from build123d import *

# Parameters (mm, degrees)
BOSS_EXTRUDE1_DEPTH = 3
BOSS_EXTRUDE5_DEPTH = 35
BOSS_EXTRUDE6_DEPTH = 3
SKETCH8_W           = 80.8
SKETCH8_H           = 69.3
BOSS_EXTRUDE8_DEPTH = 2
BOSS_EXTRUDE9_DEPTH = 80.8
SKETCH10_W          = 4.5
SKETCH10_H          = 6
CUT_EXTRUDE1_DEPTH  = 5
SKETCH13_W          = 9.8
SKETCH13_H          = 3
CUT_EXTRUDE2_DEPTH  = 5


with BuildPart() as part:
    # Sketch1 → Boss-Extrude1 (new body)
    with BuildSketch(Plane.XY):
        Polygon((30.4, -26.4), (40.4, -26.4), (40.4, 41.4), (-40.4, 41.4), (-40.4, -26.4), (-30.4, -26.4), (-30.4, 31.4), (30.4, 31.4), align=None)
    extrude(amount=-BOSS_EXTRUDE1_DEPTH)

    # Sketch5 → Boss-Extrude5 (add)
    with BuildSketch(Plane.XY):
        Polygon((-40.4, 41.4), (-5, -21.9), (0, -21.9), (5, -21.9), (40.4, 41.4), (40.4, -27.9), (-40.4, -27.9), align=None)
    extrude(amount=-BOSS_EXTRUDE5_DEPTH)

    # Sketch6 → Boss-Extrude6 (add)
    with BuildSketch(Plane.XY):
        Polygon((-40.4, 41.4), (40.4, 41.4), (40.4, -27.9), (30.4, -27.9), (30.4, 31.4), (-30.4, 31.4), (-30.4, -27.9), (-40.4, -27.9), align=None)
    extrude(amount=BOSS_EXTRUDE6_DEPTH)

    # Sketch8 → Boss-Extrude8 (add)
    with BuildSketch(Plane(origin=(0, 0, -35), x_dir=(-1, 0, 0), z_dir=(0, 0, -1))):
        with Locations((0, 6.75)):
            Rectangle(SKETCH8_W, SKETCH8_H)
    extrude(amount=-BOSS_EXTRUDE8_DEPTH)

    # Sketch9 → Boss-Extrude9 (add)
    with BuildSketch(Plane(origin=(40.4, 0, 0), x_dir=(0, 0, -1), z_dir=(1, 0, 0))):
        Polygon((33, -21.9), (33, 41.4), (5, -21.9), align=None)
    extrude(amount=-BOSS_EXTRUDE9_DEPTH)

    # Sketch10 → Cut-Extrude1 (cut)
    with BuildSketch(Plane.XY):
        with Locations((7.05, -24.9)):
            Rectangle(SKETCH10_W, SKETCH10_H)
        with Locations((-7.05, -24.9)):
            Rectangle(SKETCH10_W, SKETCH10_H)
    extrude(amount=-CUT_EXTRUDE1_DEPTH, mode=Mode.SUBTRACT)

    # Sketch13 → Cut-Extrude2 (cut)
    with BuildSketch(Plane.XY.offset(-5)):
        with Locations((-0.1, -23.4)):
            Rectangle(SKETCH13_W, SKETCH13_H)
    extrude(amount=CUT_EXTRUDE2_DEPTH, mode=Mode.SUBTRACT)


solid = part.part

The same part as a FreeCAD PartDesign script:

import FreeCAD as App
import Part
import Sketcher
from FreeCAD import Vector

doc = App.newDocument("Part")
body = doc.addObject("PartDesign::Body", "Body")

# Sketch on XY plane
sketch1 = doc.addObject("Sketcher::SketchObject", "Sketch")
body.addObject(sketch1)
sketch1.AttachmentSupport = (doc.XY_Plane, [""])
sketch1.MapMode = "FlatFace"
sketch1.addGeometry(Part.LineSegment(Vector(30, -26, 0), Vector(40, -26, 0)), False)
sketch1.addGeometry(Part.LineSegment(Vector(40, -26, 0), Vector(40, 41, 0)), False)
sketch1.addGeometry(Part.LineSegment(Vector(40, 41, 0), Vector(-40, 41, 0)), False)
sketch1.addGeometry(Part.LineSegment(Vector(-40, 41, 0), Vector(-40, -26, 0)), False)
sketch1.addGeometry(Part.LineSegment(Vector(-40, -26, 0), Vector(-30, -26, 0)), False)
sketch1.addGeometry(Part.LineSegment(Vector(-30, -26, 0), Vector(-30, 31, 0)), False)
sketch1.addGeometry(Part.LineSegment(Vector(-30, 31, 0), Vector(30, 31, 0)), False)
sketch1.addGeometry(Part.LineSegment(Vector(30, 31, 0), Vector(30, -26, 0)), False)
sketch1.addConstraint(Sketcher.Constraint("Coincident", 0, 2, 1, 1))
sketch1.addConstraint(Sketcher.Constraint("Coincident", 1, 2, 2, 1))
sketch1.addConstraint(Sketcher.Constraint("Coincident", 2, 2, 3, 1))
sketch1.addConstraint(Sketcher.Constraint("Coincident", 3, 2, 4, 1))
sketch1.addConstraint(Sketcher.Constraint("Coincident", 4, 2, 5, 1))
sketch1.addConstraint(Sketcher.Constraint("Coincident", 5, 2, 6, 1))
sketch1.addConstraint(Sketcher.Constraint("Coincident", 6, 2, 7, 1))
sketch1.addConstraint(Sketcher.Constraint("Coincident", 7, 2, 0, 1))
sketch1.addConstraint(Sketcher.Constraint("Horizontal", 0))
sketch1.addConstraint(Sketcher.Constraint("Vertical", 1))
sketch1.addConstraint(Sketcher.Constraint("Horizontal", 2))
sketch1.addConstraint(Sketcher.Constraint("Vertical", 3))
sketch1.addConstraint(Sketcher.Constraint("Horizontal", 4))
sketch1.addConstraint(Sketcher.Constraint("Vertical", 5))
sketch1.addConstraint(Sketcher.Constraint("Horizontal", 6))
sketch1.addConstraint(Sketcher.Constraint("Vertical", 7))
sketch1.addConstraint(Sketcher.Constraint("Symmetric", 0, 2, 3, 2, -2))
sketch1.addConstraint(Sketcher.Constraint("Equal", 0, 4))
sketch1.addConstraint(Sketcher.Constraint("DistanceX", 0, 1, 0, 2, 10.0))
sketch1.addConstraint(Sketcher.Constraint("DistanceX", 2, 2, 2, 1, 80.8))
sketch1.addConstraint(Sketcher.Constraint("DistanceY", 1, 1, 1, 2, 67.8))
sketch1.addConstraint(Sketcher.Constraint("DistanceY", 5, 1, 5, 2, 57.8))
sketch1.addConstraint(Sketcher.Constraint("DistanceY", 0, 2, -1, 1, 26.4))
pad1 = doc.addObject("PartDesign::Pad", "Pad")
body.addObject(pad1)
pad1.Profile = sketch1
pad1.Length = 3
pad1.Reversed = True

# Sketch on XY plane
sketch2 = doc.addObject("Sketcher::SketchObject", "Sketch001")
body.addObject(sketch2)
sketch2.AttachmentSupport = (doc.XY_Plane, [""])
sketch2.MapMode = "FlatFace"
sketch2.addGeometry(Part.LineSegment(Vector(-5, -22, 0), Vector(-40, 41, 0)), False)
sketch2.addGeometry(Part.LineSegment(Vector(-40, 41, 0), Vector(-40, -28, 0)), False)
sketch2.addGeometry(Part.LineSegment(Vector(-40, -28, 0), Vector(40, -28, 0)), False)
sketch2.addGeometry(Part.LineSegment(Vector(40, -28, 0), Vector(40, 41, 0)), False)
sketch2.addGeometry(Part.LineSegment(Vector(40, 41, 0), Vector(5, -22, 0)), False)
sketch2.addGeometry(Part.LineSegment(Vector(5, -22, 0), Vector(-5, -22, 0)), False)
sketch2.addConstraint(Sketcher.Constraint("Coincident", 0, 2, 1, 1))
sketch2.addConstraint(Sketcher.Constraint("Coincident", 1, 2, 2, 1))
sketch2.addConstraint(Sketcher.Constraint("Coincident", 2, 2, 3, 1))
sketch2.addConstraint(Sketcher.Constraint("Coincident", 3, 2, 4, 1))
sketch2.addConstraint(Sketcher.Constraint("Coincident", 4, 2, 5, 1))
sketch2.addConstraint(Sketcher.Constraint("Coincident", 5, 2, 0, 1))
sketch2.addConstraint(Sketcher.Constraint("Vertical", 1))
sketch2.addConstraint(Sketcher.Constraint("Horizontal", 2))
sketch2.addConstraint(Sketcher.Constraint("Vertical", 3))
sketch2.addConstraint(Sketcher.Constraint("Horizontal", 5))
sketch2.addConstraint(Sketcher.Constraint("Symmetric", 0, 2, 3, 2, -2))
sketch2.addConstraint(Sketcher.Constraint("Equal", 0, 4))
sketch2.addConstraint(Sketcher.Constraint("DistanceX", 5, 2, 5, 1, 10.0))
sketch2.addConstraint(Sketcher.Constraint("DistanceX", 2, 1, 2, 2, 80.8))
sketch2.addConstraint(Sketcher.Constraint("DistanceY", 1, 2, 1, 1, 69.3))
sketch2.addConstraint(Sketcher.Constraint("DistanceY", 2, 2, 4, 2, 6.0))
sketch2.addConstraint(Sketcher.Constraint("DistanceY", -1, 1, 0, 2, 41.4))
pad2 = doc.addObject("PartDesign::Pad", "Pad001")
body.addObject(pad2)
pad2.Profile = sketch2
pad2.Length = 35
pad2.Reversed = True

# Sketch on XY plane
sketch3 = doc.addObject("Sketcher::SketchObject", "Sketch002")
body.addObject(sketch3)
sketch3.AttachmentSupport = (doc.XY_Plane, [""])
sketch3.MapMode = "FlatFace"
sketch3.addGeometry(Part.LineSegment(Vector(40, 41, 0), Vector(-40, 41, 0)), False)
sketch3.addGeometry(Part.LineSegment(Vector(-40, 41, 0), Vector(-40, -28, 0)), False)
sketch3.addGeometry(Part.LineSegment(Vector(-40, -28, 0), Vector(-30, -28, 0)), False)
sketch3.addGeometry(Part.LineSegment(Vector(-30, -28, 0), Vector(-30, 31, 0)), False)
sketch3.addGeometry(Part.LineSegment(Vector(-30, 31, 0), Vector(30, 31, 0)), False)
sketch3.addGeometry(Part.LineSegment(Vector(30, 31, 0), Vector(30, -28, 0)), False)
sketch3.addGeometry(Part.LineSegment(Vector(30, -28, 0), Vector(40, -28, 0)), False)
sketch3.addGeometry(Part.LineSegment(Vector(40, -28, 0), Vector(40, 41, 0)), False)
sketch3.addConstraint(Sketcher.Constraint("Coincident", 0, 2, 1, 1))
sketch3.addConstraint(Sketcher.Constraint("Coincident", 1, 2, 2, 1))
sketch3.addConstraint(Sketcher.Constraint("Coincident", 2, 2, 3, 1))
sketch3.addConstraint(Sketcher.Constraint("Coincident", 3, 2, 4, 1))
sketch3.addConstraint(Sketcher.Constraint("Coincident", 4, 2, 5, 1))
sketch3.addConstraint(Sketcher.Constraint("Coincident", 5, 2, 6, 1))
sketch3.addConstraint(Sketcher.Constraint("Coincident", 6, 2, 7, 1))
sketch3.addConstraint(Sketcher.Constraint("Coincident", 7, 2, 0, 1))
sketch3.addConstraint(Sketcher.Constraint("Horizontal", 0))
sketch3.addConstraint(Sketcher.Constraint("Vertical", 1))
sketch3.addConstraint(Sketcher.Constraint("Horizontal", 2))
sketch3.addConstraint(Sketcher.Constraint("Vertical", 3))
sketch3.addConstraint(Sketcher.Constraint("Horizontal", 4))
sketch3.addConstraint(Sketcher.Constraint("Vertical", 5))
sketch3.addConstraint(Sketcher.Constraint("Horizontal", 6))
sketch3.addConstraint(Sketcher.Constraint("Vertical", 7))
sketch3.addConstraint(Sketcher.Constraint("Symmetric", 2, 2, 5, 2, -2))
sketch3.addConstraint(Sketcher.Constraint("Equal", 2, 6))
sketch3.addConstraint(Sketcher.Constraint("DistanceX", 2, 1, 2, 2, 10.0))
sketch3.addConstraint(Sketcher.Constraint("DistanceX", 0, 2, 0, 1, 80.8))
sketch3.addConstraint(Sketcher.Constraint("DistanceY", 1, 2, 1, 1, 69.3))
sketch3.addConstraint(Sketcher.Constraint("DistanceY", 3, 1, 3, 2, 59.3))
sketch3.addConstraint(Sketcher.Constraint("DistanceY", -1, 1, 0, 2, 41.4))
pad3 = doc.addObject("PartDesign::Pad", "Pad002")
body.addObject(pad3)
pad3.Profile = sketch3
pad3.Length = 3

# Sketch on XY plane
sketch4 = doc.addObject("Sketcher::SketchObject", "Sketch003")
body.addObject(sketch4)
sketch4.AttachmentSupport = (doc.XY_Plane, [""])
sketch4.MapMode = "FlatFace"
sketch4.AttachmentOffset = App.Placement(Vector(0, 0, -35), App.Rotation())
sketch4.addGeometry(Part.LineSegment(Vector(40, 41, 0), Vector(40, -28, 0)), False)
sketch4.addGeometry(Part.LineSegment(Vector(40, -28, 0), Vector(-40, -28, 0)), False)
sketch4.addGeometry(Part.LineSegment(Vector(-40, -28, 0), Vector(-40, 41, 0)), False)
sketch4.addGeometry(Part.LineSegment(Vector(-40, 41, 0), Vector(40, 41, 0)), False)
sketch4.addConstraint(Sketcher.Constraint("Coincident", 0, 2, 1, 1))
sketch4.addConstraint(Sketcher.Constraint("Coincident", 1, 2, 2, 1))
sketch4.addConstraint(Sketcher.Constraint("Coincident", 2, 2, 3, 1))
sketch4.addConstraint(Sketcher.Constraint("Coincident", 3, 2, 0, 1))
sketch4.addConstraint(Sketcher.Constraint("Vertical", 0))
sketch4.addConstraint(Sketcher.Constraint("Horizontal", 1))
sketch4.addConstraint(Sketcher.Constraint("Vertical", 2))
sketch4.addConstraint(Sketcher.Constraint("Horizontal", 3))
sketch4.addConstraint(Sketcher.Constraint("DistanceX", 1, 2, 1, 1, 80.8))
sketch4.addConstraint(Sketcher.Constraint("DistanceY", 0, 2, 0, 1, 69.3))
sketch4.addConstraint(Sketcher.Constraint("DistanceX", -1, 1, 0, 2, 40.4))
sketch4.addConstraint(Sketcher.Constraint("DistanceY", 0, 2, -1, 1, 27.9))
pad4 = doc.addObject("PartDesign::Pad", "Pad003")
body.addObject(pad4)
pad4.Profile = sketch4
pad4.Length = 2

# Sketch on YZ plane
sketch5 = doc.addObject("Sketcher::SketchObject", "Sketch004")
body.addObject(sketch5)
sketch5.AttachmentSupport = (doc.YZ_Plane, [""])
sketch5.MapMode = "FlatFace"
sketch5.AttachmentOffset = App.Placement(Vector(0, 0, 40.4), App.Rotation())
sketch5.addGeometry(Part.LineSegment(Vector(-22, -33, 0), Vector(41, -33, 0)), False)
sketch5.addGeometry(Part.LineSegment(Vector(41, -33, 0), Vector(-22, -5, 0)), False)
sketch5.addGeometry(Part.LineSegment(Vector(-22, -5, 0), Vector(-22, -33, 0)), False)
sketch5.addConstraint(Sketcher.Constraint("Coincident", 0, 2, 1, 1))
sketch5.addConstraint(Sketcher.Constraint("Coincident", 1, 2, 2, 1))
sketch5.addConstraint(Sketcher.Constraint("Coincident", 2, 2, 0, 1))
sketch5.addConstraint(Sketcher.Constraint("Horizontal", 0))
sketch5.addConstraint(Sketcher.Constraint("Vertical", 2))
sketch5.addConstraint(Sketcher.Constraint("DistanceY", 2, 2, 2, 1, 28.0))
sketch5.addConstraint(Sketcher.Constraint("DistanceX", 0, 1, 0, 2, 63.3))
sketch5.addConstraint(Sketcher.Constraint("DistanceY", 0, 2, -1, 1, 33.0))
sketch5.addConstraint(Sketcher.Constraint("DistanceX", -1, 1, 0, 2, 41.4))
pad5 = doc.addObject("PartDesign::Pad", "Pad004")
body.addObject(pad5)
pad5.Profile = sketch5
pad5.Length = 80.8
pad5.Reversed = True

# Sketch on XY plane
sketch6 = doc.addObject("Sketcher::SketchObject", "Sketch005")
body.addObject(sketch6)
sketch6.AttachmentSupport = (doc.XY_Plane, [""])
sketch6.MapMode = "FlatFace"
sketch6.addGeometry(Part.LineSegment(Vector(4.8, -21.9, 0), Vector(4.8, -27.9, 0)), False)
sketch6.addGeometry(Part.LineSegment(Vector(4.8, -27.9, 0), Vector(9.3, -27.9, 0)), False)
sketch6.addGeometry(Part.LineSegment(Vector(9.3, -27.9, 0), Vector(9.3, -21.9, 0)), False)
sketch6.addGeometry(Part.LineSegment(Vector(9.3, -21.9, 0), Vector(4.8, -21.9, 0)), False)
sketch6.addGeometry(Part.LineSegment(Vector(-9.3, -21.9, 0), Vector(-9.3, -27.9, 0)), False)
sketch6.addGeometry(Part.LineSegment(Vector(-9.3, -27.9, 0), Vector(-4.8, -27.9, 0)), False)
sketch6.addGeometry(Part.LineSegment(Vector(-4.8, -27.9, 0), Vector(-4.8, -21.9, 0)), False)
sketch6.addGeometry(Part.LineSegment(Vector(-4.8, -21.9, 0), Vector(-9.3, -21.9, 0)), False)
sketch6.addConstraint(Sketcher.Constraint("Coincident", 0, 2, 1, 1))
sketch6.addConstraint(Sketcher.Constraint("Coincident", 1, 2, 2, 1))
sketch6.addConstraint(Sketcher.Constraint("Coincident", 2, 2, 3, 1))
sketch6.addConstraint(Sketcher.Constraint("Coincident", 3, 2, 0, 1))
sketch6.addConstraint(Sketcher.Constraint("Coincident", 4, 2, 5, 1))
sketch6.addConstraint(Sketcher.Constraint("Coincident", 5, 2, 6, 1))
sketch6.addConstraint(Sketcher.Constraint("Coincident", 6, 2, 7, 1))
sketch6.addConstraint(Sketcher.Constraint("Coincident", 7, 2, 4, 1))
sketch6.addConstraint(Sketcher.Constraint("Vertical", 0))
sketch6.addConstraint(Sketcher.Constraint("Horizontal", 1))
sketch6.addConstraint(Sketcher.Constraint("Vertical", 2))
sketch6.addConstraint(Sketcher.Constraint("Horizontal", 3))
sketch6.addConstraint(Sketcher.Constraint("Vertical", 4))
sketch6.addConstraint(Sketcher.Constraint("Horizontal", 5))
sketch6.addConstraint(Sketcher.Constraint("Vertical", 6))
sketch6.addConstraint(Sketcher.Constraint("Horizontal", 7))
sketch6.addConstraint(Sketcher.Constraint("Symmetric", 1, 2, 4, 2, -2))
sketch6.addConstraint(Sketcher.Constraint("Symmetric", 3, 2, 6, 2, -2))
sketch6.addConstraint(Sketcher.Constraint("DistanceY", 0, 2, 0, 1, 6.0))
sketch6.addConstraint(Sketcher.Constraint("DistanceX", 1, 1, 1, 2, 4.5))
sketch6.addConstraint(Sketcher.Constraint("DistanceX", -1, 1, 0, 2, 4.8))
sketch6.addConstraint(Sketcher.Constraint("DistanceY", 0, 2, -1, 1, 27.9))
pocket1 = doc.addObject("PartDesign::Pocket", "Pocket")
body.addObject(pocket1)
pocket1.Profile = sketch6
pocket1.Length = 5

# Sketch on XY plane
sketch7 = doc.addObject("Sketcher::SketchObject", "Sketch006")
body.addObject(sketch7)
sketch7.AttachmentSupport = (doc.XY_Plane, [""])
sketch7.MapMode = "FlatFace"
sketch7.AttachmentOffset = App.Placement(Vector(0, 0, -5), App.Rotation())
sketch7.addGeometry(Part.LineSegment(Vector(-5, -21.9, 0), Vector(-5, -24.9, 0)), False)
sketch7.addGeometry(Part.LineSegment(Vector(-5, -24.9, 0), Vector(4.8, -24.9, 0)), False)
sketch7.addGeometry(Part.LineSegment(Vector(4.8, -24.9, 0), Vector(4.8, -21.9, 0)), False)
sketch7.addGeometry(Part.LineSegment(Vector(4.8, -21.9, 0), Vector(-5, -21.9, 0)), False)
sketch7.addConstraint(Sketcher.Constraint("Coincident", 0, 2, 1, 1))
sketch7.addConstraint(Sketcher.Constraint("Coincident", 1, 2, 2, 1))
sketch7.addConstraint(Sketcher.Constraint("Coincident", 2, 2, 3, 1))
sketch7.addConstraint(Sketcher.Constraint("Coincident", 3, 2, 0, 1))
sketch7.addConstraint(Sketcher.Constraint("Vertical", 0))
sketch7.addConstraint(Sketcher.Constraint("Horizontal", 1))
sketch7.addConstraint(Sketcher.Constraint("Vertical", 2))
sketch7.addConstraint(Sketcher.Constraint("Horizontal", 3))
sketch7.addConstraint(Sketcher.Constraint("DistanceY", 0, 2, 0, 1, 3.0))
sketch7.addConstraint(Sketcher.Constraint("DistanceX", 1, 1, 1, 2, 9.8))
sketch7.addConstraint(Sketcher.Constraint("DistanceX", 0, 2, -1, 1, 5.0))
sketch7.addConstraint(Sketcher.Constraint("DistanceY", 0, 2, -1, 1, 24.9))
pocket2 = doc.addObject("PartDesign::Pocket", "Pocket001")
body.addObject(pocket2)
pocket2.Profile = sketch7
pocket2.Length = 5
pocket2.Reversed = True

doc.recompute()
